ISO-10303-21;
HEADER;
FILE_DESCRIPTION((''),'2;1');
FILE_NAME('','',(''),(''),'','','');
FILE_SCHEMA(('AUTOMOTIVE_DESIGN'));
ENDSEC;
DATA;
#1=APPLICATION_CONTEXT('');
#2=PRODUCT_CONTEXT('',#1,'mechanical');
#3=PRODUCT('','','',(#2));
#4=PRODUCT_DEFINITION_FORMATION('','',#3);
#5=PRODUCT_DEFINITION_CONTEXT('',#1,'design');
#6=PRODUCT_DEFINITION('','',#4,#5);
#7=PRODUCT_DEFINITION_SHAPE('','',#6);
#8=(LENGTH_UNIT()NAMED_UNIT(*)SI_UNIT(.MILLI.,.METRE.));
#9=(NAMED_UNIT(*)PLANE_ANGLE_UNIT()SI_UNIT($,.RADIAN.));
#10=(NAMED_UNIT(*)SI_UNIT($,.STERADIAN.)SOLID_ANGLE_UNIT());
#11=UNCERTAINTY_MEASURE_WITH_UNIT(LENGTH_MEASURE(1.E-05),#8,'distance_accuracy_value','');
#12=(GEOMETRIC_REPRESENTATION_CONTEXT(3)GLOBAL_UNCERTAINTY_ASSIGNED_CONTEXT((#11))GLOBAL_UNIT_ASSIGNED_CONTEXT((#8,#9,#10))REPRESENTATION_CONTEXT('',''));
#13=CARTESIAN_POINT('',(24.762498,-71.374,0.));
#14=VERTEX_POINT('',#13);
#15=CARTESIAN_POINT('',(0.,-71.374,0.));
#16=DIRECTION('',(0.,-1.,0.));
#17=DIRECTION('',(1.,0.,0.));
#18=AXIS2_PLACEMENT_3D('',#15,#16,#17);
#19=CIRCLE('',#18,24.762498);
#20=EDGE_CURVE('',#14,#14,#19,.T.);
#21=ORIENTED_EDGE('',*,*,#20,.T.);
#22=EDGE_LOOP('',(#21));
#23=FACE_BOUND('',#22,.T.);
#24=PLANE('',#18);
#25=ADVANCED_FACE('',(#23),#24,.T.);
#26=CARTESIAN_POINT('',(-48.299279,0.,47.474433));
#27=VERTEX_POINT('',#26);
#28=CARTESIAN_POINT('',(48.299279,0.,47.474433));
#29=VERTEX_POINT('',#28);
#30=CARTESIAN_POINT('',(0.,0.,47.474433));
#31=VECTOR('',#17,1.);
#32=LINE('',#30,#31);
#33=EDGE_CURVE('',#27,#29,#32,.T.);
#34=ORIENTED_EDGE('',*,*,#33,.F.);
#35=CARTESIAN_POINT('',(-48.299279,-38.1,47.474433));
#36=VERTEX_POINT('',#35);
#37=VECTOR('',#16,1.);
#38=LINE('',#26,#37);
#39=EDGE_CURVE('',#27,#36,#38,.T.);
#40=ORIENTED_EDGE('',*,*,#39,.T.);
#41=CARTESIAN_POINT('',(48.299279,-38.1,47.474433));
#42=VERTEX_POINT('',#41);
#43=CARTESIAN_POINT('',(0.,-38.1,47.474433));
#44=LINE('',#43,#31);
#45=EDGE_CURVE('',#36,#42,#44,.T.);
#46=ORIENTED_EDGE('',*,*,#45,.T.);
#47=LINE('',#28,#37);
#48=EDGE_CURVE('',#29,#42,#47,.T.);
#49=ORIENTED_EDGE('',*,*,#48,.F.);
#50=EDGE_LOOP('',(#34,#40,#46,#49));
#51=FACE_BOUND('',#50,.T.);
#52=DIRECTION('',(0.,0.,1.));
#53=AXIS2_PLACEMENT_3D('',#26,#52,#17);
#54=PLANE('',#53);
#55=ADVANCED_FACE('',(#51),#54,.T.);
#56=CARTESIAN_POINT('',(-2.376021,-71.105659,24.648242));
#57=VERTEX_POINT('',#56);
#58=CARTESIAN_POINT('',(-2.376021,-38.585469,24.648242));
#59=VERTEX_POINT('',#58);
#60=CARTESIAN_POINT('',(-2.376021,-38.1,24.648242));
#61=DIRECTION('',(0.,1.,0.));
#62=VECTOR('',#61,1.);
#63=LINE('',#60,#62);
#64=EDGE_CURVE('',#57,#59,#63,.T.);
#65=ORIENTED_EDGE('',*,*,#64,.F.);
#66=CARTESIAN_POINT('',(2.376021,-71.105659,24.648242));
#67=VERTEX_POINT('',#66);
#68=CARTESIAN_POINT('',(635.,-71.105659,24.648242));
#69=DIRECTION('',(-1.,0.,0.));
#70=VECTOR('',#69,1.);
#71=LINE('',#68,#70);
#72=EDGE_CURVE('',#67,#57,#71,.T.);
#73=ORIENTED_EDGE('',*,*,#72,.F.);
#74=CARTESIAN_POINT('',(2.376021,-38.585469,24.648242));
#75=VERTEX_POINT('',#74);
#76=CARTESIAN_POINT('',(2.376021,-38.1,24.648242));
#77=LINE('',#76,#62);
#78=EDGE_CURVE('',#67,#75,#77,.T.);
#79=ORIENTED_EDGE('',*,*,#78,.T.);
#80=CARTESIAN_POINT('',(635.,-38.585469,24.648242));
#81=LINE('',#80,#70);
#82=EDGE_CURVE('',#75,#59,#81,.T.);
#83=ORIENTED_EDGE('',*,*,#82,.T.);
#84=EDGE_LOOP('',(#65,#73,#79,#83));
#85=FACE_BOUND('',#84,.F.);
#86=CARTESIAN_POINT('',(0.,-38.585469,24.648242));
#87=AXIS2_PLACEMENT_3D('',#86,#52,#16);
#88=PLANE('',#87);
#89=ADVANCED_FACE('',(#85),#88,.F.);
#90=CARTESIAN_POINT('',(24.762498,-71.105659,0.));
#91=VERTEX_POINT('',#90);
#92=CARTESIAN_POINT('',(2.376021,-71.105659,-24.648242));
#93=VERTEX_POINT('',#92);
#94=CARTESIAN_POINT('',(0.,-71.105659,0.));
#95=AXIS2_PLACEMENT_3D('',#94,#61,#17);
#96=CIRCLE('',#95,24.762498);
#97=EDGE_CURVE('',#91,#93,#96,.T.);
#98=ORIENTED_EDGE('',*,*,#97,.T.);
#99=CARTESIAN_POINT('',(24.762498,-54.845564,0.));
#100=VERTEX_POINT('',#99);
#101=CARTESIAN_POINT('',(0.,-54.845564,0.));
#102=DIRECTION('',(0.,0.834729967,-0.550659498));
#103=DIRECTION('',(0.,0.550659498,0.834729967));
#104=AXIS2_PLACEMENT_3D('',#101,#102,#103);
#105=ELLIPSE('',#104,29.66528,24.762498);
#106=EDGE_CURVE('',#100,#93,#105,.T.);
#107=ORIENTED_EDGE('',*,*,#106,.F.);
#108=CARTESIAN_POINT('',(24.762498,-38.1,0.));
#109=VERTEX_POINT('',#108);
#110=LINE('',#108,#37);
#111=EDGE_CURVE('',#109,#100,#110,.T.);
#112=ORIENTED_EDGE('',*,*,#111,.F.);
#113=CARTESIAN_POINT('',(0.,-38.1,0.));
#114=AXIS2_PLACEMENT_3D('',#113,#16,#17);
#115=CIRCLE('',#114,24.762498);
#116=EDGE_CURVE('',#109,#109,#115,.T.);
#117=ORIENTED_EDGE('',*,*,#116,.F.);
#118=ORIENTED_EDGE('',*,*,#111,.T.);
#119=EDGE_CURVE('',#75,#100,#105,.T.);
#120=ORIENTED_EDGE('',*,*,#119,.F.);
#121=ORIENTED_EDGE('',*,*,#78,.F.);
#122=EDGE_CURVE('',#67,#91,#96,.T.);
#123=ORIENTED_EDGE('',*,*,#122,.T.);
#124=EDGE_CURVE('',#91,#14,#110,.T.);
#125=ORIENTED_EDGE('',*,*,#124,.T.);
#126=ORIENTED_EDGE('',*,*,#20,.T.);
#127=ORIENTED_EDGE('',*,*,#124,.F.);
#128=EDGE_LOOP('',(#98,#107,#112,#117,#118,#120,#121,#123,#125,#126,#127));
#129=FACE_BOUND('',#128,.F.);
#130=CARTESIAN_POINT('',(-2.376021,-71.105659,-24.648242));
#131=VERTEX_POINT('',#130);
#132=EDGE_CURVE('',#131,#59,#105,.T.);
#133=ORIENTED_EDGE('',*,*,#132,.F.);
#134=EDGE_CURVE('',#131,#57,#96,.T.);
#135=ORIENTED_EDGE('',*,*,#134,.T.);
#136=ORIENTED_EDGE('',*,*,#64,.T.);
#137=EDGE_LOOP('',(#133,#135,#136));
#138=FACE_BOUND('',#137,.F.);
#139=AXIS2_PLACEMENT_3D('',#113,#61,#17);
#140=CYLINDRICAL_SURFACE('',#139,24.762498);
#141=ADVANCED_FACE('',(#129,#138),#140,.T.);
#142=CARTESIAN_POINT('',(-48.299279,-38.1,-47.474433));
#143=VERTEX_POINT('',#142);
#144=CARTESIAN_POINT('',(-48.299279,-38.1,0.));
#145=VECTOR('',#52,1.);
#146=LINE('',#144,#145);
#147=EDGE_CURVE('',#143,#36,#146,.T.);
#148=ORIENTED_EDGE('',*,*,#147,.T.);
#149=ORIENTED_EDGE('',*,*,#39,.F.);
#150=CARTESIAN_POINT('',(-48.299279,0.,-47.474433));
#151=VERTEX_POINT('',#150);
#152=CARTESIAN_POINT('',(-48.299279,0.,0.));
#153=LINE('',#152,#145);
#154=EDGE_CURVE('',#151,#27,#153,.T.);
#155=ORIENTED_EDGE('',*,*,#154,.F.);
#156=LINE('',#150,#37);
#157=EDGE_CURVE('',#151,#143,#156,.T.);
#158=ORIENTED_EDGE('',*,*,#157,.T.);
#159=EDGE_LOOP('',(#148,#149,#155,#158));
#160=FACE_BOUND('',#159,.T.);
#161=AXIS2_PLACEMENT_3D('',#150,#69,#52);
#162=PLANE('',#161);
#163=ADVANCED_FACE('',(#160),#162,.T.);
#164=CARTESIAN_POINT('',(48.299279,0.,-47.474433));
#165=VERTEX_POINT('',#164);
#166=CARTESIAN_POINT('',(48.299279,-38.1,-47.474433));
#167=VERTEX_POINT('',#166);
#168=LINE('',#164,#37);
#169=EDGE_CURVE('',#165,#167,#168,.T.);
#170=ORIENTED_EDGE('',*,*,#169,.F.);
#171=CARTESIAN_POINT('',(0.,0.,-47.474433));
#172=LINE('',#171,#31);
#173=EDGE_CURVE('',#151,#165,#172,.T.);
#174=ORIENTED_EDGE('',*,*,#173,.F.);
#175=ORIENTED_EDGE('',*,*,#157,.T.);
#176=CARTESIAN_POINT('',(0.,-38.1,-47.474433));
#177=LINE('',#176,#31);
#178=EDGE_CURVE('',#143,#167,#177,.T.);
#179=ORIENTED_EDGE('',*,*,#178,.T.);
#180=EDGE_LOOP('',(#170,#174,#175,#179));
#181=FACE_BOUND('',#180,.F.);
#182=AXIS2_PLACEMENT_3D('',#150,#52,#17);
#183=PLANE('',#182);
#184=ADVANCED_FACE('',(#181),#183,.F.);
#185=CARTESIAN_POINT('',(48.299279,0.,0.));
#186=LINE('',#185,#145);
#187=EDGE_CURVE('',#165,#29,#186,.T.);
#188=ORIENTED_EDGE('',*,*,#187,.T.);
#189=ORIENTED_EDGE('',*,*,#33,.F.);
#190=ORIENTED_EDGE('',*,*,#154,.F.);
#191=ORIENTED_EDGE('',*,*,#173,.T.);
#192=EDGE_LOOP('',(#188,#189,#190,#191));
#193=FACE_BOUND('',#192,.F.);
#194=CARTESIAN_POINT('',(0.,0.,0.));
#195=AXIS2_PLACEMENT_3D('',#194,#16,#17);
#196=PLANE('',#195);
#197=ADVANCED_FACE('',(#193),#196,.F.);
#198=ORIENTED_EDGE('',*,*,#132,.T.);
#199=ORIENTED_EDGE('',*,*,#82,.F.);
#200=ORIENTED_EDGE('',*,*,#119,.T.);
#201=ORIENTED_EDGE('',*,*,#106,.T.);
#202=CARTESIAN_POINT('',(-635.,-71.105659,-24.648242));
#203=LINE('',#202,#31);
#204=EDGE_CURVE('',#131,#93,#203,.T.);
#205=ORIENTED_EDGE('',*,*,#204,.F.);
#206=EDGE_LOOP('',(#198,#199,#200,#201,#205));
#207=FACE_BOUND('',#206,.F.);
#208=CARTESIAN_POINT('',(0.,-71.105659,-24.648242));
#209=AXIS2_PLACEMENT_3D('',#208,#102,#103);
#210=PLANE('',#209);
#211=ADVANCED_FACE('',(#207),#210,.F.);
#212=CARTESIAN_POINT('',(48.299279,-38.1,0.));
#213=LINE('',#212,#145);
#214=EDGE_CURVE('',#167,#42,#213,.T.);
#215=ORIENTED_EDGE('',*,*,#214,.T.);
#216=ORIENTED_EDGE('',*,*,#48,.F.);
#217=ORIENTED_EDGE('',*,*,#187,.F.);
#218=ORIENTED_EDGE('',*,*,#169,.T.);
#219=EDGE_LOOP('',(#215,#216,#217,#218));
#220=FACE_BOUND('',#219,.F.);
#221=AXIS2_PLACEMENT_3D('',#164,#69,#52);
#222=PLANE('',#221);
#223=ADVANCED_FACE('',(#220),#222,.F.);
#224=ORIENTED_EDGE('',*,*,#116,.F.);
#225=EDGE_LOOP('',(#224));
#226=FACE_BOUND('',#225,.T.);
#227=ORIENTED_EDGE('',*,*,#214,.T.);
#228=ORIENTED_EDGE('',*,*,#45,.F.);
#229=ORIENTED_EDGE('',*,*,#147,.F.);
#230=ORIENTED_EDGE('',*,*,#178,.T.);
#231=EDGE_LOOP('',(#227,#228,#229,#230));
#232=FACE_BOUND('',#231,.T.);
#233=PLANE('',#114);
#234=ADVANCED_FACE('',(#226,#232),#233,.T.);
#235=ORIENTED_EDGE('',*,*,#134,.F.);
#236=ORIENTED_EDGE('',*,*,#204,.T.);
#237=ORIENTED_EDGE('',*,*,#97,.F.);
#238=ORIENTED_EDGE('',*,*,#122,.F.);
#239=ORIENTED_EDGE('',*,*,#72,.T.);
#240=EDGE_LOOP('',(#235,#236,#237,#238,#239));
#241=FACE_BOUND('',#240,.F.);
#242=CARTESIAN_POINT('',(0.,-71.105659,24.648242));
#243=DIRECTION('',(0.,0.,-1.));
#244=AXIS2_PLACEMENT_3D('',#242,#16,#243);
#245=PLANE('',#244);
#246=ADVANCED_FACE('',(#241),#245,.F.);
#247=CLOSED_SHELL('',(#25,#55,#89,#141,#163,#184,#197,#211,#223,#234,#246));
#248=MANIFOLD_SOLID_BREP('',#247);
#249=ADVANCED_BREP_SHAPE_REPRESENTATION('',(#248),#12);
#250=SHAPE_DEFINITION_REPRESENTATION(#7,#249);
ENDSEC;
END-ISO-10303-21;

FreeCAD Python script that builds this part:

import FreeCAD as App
import Part
import Sketcher

V = App.Vector


def add_polygon(sketch, points):
    """Adds a closed chain of lines whose ends are joined by coincident constraints."""
    first, n = sketch.GeometryCount, len(points)
    for a, b in zip(points, points[1:] + points[:1]):
        sketch.addGeometry(Part.LineSegment(App.Vector(*a, 0), App.Vector(*b, 0)), False)
    for i in range(n):
        sketch.addConstraint(Sketcher.Constraint("Coincident", first + i, 2, first + (i + 1) % n, 1))

doc = App.newDocument("Part")
params = doc.addObject("Spreadsheet::Sheet", "Params")
for row, (alias, value) in enumerate([
    ("pad1_length", "1.5 in"),
    ("pad2_length", "1.31 in"),
    ("pocket1_length", "50 in"),
], start=1):
    params.set(f"A{row}", alias)
    params.set(f"B{row}", "=" + value)
    params.setAlias(f"B{row}", alias)

body = doc.addObject("PartDesign::Body", "Body")

# Sketch on XZ plane
sketch1 = body.newObject("Sketcher::SketchObject", "Sketch")
sketch1.AttachmentSupport = (doc.getObject("XZ_Plane"), [""])
sketch1.MapMode = "FlatFace"
add_polygon(sketch1, [(-48.299279, 47.474433), (-48.299279, -47.474433), (48.299279, -47.474433), (48.299279, 47.474433)])  # lines 0-3
sketch1.addConstraint([
    Sketcher.Constraint("Vertical", 0),
    Sketcher.Constraint("Horizontal", 1),
    Sketcher.Constraint("Vertical", 2),
    Sketcher.Constraint("Horizontal", 3),
    Sketcher.Constraint("Symmetric", 0, 2, 2, 2, -1, 1),
    Sketcher.Constraint("DistanceX", 1, 1, 1, 2, 96.598558),
    Sketcher.Constraint("DistanceY", 0, 2, 0, 1, 94.948866),
])
pad1 = body.newObject("PartDesign::Pad", "Pad")
pad1.Profile = sketch1
pad1.setExpression("Length", "Params.pad1_length")

# Sketch on XZ plane
sketch2 = body.newObject("Sketcher::SketchObject", "Sketch001")
sketch2.AttachmentSupport = (doc.getObject("XZ_Plane"), [""])
sketch2.MapMode = "FlatFace"
sketch2.AttachmentOffset = App.Placement(V(0, 0, 1.5 * 25.4), App.Rotation())
sketch2.addGeometry(Part.Circle(V(0, 0, 0), V(0, 0, 1), 24.762498), False)
sketch2.addConstraint([
    Sketcher.Constraint("Coincident", 0, 3, -1, 1),
    Sketcher.Constraint("Diameter", 0, 49.524996),
])
pad2 = body.newObject("PartDesign::Pad", "Pad001")
pad2.Profile = sketch2
pad2.setExpression("Length", "Params.pad2_length")

# Sketch on YZ plane
sketch3 = body.newObject("Sketcher::SketchObject", "Sketch002")
sketch3.AttachmentSupport = (doc.getObject("YZ_Plane"), [""])
sketch3.MapMode = "FlatFace"
add_polygon(sketch3, [(-71.105659, 24.648242), (-71.105659, -24.648242), (-38.585469, 24.648242)])  # lines 0-2
sketch3.addConstraint([
    Sketcher.Constraint("Vertical", 0),
    Sketcher.Constraint("Horizontal", 2),
    Sketcher.Constraint("DistanceX", 2, 2, 2, 1, 32.52019),
    Sketcher.Constraint("DistanceY", 0, 2, 0, 1, 49.296484),
    Sketcher.Constraint("DistanceX", 0, 2, -1, 1, 71.105659),
    Sketcher.Constraint("DistanceY", 0, 2, -1, 1, 24.648242),
])
pocket1 = body.newObject("PartDesign::Pocket", "Pocket")
pocket1.Profile = sketch3
pocket1.setExpression("Length", "Params.pocket1_length")
pocket1.Midplane = True

doc.recompute()
